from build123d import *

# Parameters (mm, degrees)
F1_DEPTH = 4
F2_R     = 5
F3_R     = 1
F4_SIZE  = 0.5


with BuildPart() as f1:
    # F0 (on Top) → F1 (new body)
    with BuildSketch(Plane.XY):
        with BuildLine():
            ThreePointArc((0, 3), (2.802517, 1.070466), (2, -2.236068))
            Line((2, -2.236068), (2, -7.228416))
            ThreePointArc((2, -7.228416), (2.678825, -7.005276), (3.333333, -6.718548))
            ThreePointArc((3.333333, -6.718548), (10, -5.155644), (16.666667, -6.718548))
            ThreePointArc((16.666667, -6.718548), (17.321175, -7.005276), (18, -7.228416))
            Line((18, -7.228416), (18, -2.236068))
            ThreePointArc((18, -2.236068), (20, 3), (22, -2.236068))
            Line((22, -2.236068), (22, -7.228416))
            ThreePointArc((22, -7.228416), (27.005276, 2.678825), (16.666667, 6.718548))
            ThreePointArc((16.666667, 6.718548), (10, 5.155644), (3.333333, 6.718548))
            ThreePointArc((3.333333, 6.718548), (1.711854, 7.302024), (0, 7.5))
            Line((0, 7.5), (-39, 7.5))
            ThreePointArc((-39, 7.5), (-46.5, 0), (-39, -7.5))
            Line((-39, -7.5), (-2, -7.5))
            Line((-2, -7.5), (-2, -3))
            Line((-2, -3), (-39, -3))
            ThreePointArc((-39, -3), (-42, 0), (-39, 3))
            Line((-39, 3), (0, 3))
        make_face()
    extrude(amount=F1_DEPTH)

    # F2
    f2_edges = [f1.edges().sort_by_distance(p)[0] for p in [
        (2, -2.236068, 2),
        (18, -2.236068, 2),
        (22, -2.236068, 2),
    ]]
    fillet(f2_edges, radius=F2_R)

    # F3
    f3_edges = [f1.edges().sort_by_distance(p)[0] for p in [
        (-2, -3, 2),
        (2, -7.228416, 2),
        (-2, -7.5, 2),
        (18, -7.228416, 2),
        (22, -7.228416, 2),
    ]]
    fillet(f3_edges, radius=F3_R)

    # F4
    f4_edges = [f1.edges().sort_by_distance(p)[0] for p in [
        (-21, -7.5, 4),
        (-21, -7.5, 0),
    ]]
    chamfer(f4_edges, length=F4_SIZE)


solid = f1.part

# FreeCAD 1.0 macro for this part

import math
import FreeCAD as App
import Part
import Sketcher

V = App.Vector


def edges_at(feature, points):
    """Names of the edges that pass closest to the given points."""
    edges = feature.Shape.Edges
    near = lambda p: min(range(len(edges)), key=lambda i: edges[i].distToShape(Part.Vertex(*p))[0])
    return sorted({f"Edge{near(p) + 1}" for p in points})

doc = App.newDocument("Part")
body = doc.addObject("PartDesign::Body", "Body")

sketch1 = body.newObject("Sketcher::SketchObject", "Sketch")
sketch1.AttachmentSupport = (doc.getObject("XY_Plane"), [""])
sketch1.MapMode = "FlatFace"
sketch1.addGeometry([
    Part.ArcOfCircle(Part.Circle(V(0, 0, 0), V(0, 0, 1), 3), math.radians(-48), math.radians(90)),
    Part.LineSegment(V(2, -2.2, 0), V(2, -7.2, 0)),
    Part.ArcOfCircle(Part.Circle(V(0, 0, 0), V(0, 0, 1), 7.5), math.radians(-74.53), math.radians(-63.61)),
    Part.ArcOfCircle(Part.Circle(V(10, -20.2, 0), V(0, 0, 1), 15), math.radians(64), math.radians(116)),
    Part.ArcOfCircle(Part.Circle(V(20, 0, 0), V(0, 0, 1), 7.5), math.radians(-116.39), math.radians(-105.47)),
    Part.LineSegment(V(18, -7.2, 0), V(18, -2.2, 0)),
    Part.ArcOfCircle(Part.Circle(V(20, 0, 0), V(0, 0, 1), 3), math.radians(-48), math.radians(228)),
    Part.LineSegment(V(22, -2.2, 0), V(22, -7.2, 0)),
    Part.ArcOfCircle(Part.Circle(V(20, 0, 0), V(0, 0, 1), 7.5), math.radians(-75), math.radians(116)),
    Part.ArcOfCircle(Part.Circle(V(10, 20.2, 0), V(0, 0, 1), 15), math.radians(-116), math.radians(-64)),
    Part.ArcOfCircle(Part.Circle(V(0, 0, 0), V(0, 0, 1), 7.5), math.radians(64), math.radians(90)),
    Part.LineSegment(V(0, 7.5, 0), V(-39, 7.5, 0)),
    Part.ArcOfCircle(Part.Circle(V(-39, 0, 0), V(0, 0, 1), 7.5), math.radians(90), math.radians(270)),
    Part.LineSegment(V(-39, -7.5, 0), V(-2, -7.5, 0)),
    Part.LineSegment(V(-2, -7.5, 0), V(-2, -3, 0)),
    Part.LineSegment(V(-2, -3, 0), V(-39, -3, 0)),
    Part.ArcOfCircle(Part.Circle(V(-39, 0, 0), V(0, 0, 1), 3), math.radians(90), math.radians(270)),
    Part.LineSegment(V(-39, 3, 0), V(0, 3, 0)),
], False)
sketch1.addConstraint([
    Sketcher.Constraint("Coincident", 0, 1, 1, 1),
    Sketcher.Constraint("Coincident", 1, 2, 2, 1),
    Sketcher.Constraint("Tangent", 2, 2, 3, 2),
    Sketcher.Constraint("Tangent", 3, 1, 4, 1),
    Sketcher.Constraint("Coincident", 4, 2, 5, 1),
    Sketcher.Constraint("Coincident", 5, 2, 6, 2),
    Sketcher.Constraint("Coincident", 6, 1, 7, 1),
    Sketcher.Constraint("Coincident", 7, 2, 8, 1),
    Sketcher.Constraint("Tangent", 8, 2, 9, 2),
    Sketcher.Constraint("Tangent", 9, 1, 10, 1),
    Sketcher.Constraint("Tangent", 10, 2, 11, 1),
    Sketcher.Constraint("Tangent", 11, 2, 12, 1),
    Sketcher.Constraint("Tangent", 12, 2, 13, 1),
    Sketcher.Constraint("Coincident", 13, 2, 14, 1),
    Sketcher.Constraint("Coincident", 14, 2, 15, 1),
    Sketcher.Constraint("Tangent", 15, 2, 16, 2),
    Sketcher.Constraint("Tangent", 16, 1, 17, 1),
    Sketcher.Constraint("Tangent", 17, 2, 0, 2),
    Sketcher.Constraint("Vertical", 1),
    Sketcher.Constraint("Vertical", 5),
    Sketcher.Constraint("Vertical", 7),
    Sketcher.Constraint("Horizontal", 11),
    Sketcher.Constraint("Horizontal", 13),
    Sketcher.Constraint("Vertical", 14),
    Sketcher.Constraint("Horizontal", 15),
    Sketcher.Constraint("Horizontal", 17),
    Sketcher.Constraint("Coincident", 0, 3, -1, 1),
    Sketcher.Constraint("Coincident", 10, 3, -1, 1),
    Sketcher.Constraint("Coincident", 8, 3, 6, 3),
    Sketcher.Constraint("Coincident", 16, 3, 12, 3),
    Sketcher.Constraint("Equal", 2, 4),
    Sketcher.Constraint("Equal", 0, 6),
    Sketcher.Constraint("Equal", 3, 9),
    Sketcher.Constraint("Equal", 8, 10),
    Sketcher.Constraint("Equal", 10, 12),
    Sketcher.Constraint("Symmetric", 3, 3, 9, 3, -1),
    Sketcher.Constraint("PointOnObject", 6, 3, -1),
    Sketcher.Constraint("Horizontal", 2, 3, 4, 3),
    Sketcher.Constraint("Horizontal", 1, 2, 4, 2),
    Sketcher.Constraint("Horizontal", 5, 2, 6, 1),
    Sketcher.Constraint("Horizontal", 4, 2, 7, 2),
    Sketcher.Constraint("Radius", 0, 3.0),
    Sketcher.Constraint("Radius", 3, 14.999999),
    Sketcher.Constraint("Radius", 8, 7.5),
    Sketcher.Constraint("DistanceX", 11, 2, 11, 1, 39.0),
    Sketcher.Constraint("DistanceX", 13, 1, 13, 2, 37.0),
    Sketcher.Constraint("DistanceX", -1, 1, 3, 3, 10.0),
    Sketcher.Constraint("DistanceX", -1, 1, 0, 1, 2.0),
    Sketcher.Constraint("Radius", 2, 7.500026),
])
pad1 = body.newObject("PartDesign::Pad", "Pad")
pad1.Profile = sketch1
pad1.Length = 4
doc.recompute()

fillet = body.newObject("PartDesign::Fillet", "Fillet")
fillet.Base = (pad1, edges_at(pad1, [(2, -2.236, 2), (18, -2.236, 2), (22, -2.236, 2)]))
fillet.Radius = 5
doc.recompute()

fillet2 = body.newObject("PartDesign::Fillet", "Fillet001")
fillet2.Base = (fillet, edges_at(fillet, [
    (-2, -3, 2),
    (2, -7.228, 2),
    (-2, -7.5, 2),
    (18, -7.228, 2),
    (22, -7.228, 2),
]))
fillet2.Radius = 1
doc.recompute()

chamfer = body.newObject("PartDesign::Chamfer", "Chamfer")
chamfer.Base = (fillet2, edges_at(fillet2, [(-21, -7.5, 4), (-21, -7.5, 0)]))
chamfer.Size = 0.5

doc.recompute()
